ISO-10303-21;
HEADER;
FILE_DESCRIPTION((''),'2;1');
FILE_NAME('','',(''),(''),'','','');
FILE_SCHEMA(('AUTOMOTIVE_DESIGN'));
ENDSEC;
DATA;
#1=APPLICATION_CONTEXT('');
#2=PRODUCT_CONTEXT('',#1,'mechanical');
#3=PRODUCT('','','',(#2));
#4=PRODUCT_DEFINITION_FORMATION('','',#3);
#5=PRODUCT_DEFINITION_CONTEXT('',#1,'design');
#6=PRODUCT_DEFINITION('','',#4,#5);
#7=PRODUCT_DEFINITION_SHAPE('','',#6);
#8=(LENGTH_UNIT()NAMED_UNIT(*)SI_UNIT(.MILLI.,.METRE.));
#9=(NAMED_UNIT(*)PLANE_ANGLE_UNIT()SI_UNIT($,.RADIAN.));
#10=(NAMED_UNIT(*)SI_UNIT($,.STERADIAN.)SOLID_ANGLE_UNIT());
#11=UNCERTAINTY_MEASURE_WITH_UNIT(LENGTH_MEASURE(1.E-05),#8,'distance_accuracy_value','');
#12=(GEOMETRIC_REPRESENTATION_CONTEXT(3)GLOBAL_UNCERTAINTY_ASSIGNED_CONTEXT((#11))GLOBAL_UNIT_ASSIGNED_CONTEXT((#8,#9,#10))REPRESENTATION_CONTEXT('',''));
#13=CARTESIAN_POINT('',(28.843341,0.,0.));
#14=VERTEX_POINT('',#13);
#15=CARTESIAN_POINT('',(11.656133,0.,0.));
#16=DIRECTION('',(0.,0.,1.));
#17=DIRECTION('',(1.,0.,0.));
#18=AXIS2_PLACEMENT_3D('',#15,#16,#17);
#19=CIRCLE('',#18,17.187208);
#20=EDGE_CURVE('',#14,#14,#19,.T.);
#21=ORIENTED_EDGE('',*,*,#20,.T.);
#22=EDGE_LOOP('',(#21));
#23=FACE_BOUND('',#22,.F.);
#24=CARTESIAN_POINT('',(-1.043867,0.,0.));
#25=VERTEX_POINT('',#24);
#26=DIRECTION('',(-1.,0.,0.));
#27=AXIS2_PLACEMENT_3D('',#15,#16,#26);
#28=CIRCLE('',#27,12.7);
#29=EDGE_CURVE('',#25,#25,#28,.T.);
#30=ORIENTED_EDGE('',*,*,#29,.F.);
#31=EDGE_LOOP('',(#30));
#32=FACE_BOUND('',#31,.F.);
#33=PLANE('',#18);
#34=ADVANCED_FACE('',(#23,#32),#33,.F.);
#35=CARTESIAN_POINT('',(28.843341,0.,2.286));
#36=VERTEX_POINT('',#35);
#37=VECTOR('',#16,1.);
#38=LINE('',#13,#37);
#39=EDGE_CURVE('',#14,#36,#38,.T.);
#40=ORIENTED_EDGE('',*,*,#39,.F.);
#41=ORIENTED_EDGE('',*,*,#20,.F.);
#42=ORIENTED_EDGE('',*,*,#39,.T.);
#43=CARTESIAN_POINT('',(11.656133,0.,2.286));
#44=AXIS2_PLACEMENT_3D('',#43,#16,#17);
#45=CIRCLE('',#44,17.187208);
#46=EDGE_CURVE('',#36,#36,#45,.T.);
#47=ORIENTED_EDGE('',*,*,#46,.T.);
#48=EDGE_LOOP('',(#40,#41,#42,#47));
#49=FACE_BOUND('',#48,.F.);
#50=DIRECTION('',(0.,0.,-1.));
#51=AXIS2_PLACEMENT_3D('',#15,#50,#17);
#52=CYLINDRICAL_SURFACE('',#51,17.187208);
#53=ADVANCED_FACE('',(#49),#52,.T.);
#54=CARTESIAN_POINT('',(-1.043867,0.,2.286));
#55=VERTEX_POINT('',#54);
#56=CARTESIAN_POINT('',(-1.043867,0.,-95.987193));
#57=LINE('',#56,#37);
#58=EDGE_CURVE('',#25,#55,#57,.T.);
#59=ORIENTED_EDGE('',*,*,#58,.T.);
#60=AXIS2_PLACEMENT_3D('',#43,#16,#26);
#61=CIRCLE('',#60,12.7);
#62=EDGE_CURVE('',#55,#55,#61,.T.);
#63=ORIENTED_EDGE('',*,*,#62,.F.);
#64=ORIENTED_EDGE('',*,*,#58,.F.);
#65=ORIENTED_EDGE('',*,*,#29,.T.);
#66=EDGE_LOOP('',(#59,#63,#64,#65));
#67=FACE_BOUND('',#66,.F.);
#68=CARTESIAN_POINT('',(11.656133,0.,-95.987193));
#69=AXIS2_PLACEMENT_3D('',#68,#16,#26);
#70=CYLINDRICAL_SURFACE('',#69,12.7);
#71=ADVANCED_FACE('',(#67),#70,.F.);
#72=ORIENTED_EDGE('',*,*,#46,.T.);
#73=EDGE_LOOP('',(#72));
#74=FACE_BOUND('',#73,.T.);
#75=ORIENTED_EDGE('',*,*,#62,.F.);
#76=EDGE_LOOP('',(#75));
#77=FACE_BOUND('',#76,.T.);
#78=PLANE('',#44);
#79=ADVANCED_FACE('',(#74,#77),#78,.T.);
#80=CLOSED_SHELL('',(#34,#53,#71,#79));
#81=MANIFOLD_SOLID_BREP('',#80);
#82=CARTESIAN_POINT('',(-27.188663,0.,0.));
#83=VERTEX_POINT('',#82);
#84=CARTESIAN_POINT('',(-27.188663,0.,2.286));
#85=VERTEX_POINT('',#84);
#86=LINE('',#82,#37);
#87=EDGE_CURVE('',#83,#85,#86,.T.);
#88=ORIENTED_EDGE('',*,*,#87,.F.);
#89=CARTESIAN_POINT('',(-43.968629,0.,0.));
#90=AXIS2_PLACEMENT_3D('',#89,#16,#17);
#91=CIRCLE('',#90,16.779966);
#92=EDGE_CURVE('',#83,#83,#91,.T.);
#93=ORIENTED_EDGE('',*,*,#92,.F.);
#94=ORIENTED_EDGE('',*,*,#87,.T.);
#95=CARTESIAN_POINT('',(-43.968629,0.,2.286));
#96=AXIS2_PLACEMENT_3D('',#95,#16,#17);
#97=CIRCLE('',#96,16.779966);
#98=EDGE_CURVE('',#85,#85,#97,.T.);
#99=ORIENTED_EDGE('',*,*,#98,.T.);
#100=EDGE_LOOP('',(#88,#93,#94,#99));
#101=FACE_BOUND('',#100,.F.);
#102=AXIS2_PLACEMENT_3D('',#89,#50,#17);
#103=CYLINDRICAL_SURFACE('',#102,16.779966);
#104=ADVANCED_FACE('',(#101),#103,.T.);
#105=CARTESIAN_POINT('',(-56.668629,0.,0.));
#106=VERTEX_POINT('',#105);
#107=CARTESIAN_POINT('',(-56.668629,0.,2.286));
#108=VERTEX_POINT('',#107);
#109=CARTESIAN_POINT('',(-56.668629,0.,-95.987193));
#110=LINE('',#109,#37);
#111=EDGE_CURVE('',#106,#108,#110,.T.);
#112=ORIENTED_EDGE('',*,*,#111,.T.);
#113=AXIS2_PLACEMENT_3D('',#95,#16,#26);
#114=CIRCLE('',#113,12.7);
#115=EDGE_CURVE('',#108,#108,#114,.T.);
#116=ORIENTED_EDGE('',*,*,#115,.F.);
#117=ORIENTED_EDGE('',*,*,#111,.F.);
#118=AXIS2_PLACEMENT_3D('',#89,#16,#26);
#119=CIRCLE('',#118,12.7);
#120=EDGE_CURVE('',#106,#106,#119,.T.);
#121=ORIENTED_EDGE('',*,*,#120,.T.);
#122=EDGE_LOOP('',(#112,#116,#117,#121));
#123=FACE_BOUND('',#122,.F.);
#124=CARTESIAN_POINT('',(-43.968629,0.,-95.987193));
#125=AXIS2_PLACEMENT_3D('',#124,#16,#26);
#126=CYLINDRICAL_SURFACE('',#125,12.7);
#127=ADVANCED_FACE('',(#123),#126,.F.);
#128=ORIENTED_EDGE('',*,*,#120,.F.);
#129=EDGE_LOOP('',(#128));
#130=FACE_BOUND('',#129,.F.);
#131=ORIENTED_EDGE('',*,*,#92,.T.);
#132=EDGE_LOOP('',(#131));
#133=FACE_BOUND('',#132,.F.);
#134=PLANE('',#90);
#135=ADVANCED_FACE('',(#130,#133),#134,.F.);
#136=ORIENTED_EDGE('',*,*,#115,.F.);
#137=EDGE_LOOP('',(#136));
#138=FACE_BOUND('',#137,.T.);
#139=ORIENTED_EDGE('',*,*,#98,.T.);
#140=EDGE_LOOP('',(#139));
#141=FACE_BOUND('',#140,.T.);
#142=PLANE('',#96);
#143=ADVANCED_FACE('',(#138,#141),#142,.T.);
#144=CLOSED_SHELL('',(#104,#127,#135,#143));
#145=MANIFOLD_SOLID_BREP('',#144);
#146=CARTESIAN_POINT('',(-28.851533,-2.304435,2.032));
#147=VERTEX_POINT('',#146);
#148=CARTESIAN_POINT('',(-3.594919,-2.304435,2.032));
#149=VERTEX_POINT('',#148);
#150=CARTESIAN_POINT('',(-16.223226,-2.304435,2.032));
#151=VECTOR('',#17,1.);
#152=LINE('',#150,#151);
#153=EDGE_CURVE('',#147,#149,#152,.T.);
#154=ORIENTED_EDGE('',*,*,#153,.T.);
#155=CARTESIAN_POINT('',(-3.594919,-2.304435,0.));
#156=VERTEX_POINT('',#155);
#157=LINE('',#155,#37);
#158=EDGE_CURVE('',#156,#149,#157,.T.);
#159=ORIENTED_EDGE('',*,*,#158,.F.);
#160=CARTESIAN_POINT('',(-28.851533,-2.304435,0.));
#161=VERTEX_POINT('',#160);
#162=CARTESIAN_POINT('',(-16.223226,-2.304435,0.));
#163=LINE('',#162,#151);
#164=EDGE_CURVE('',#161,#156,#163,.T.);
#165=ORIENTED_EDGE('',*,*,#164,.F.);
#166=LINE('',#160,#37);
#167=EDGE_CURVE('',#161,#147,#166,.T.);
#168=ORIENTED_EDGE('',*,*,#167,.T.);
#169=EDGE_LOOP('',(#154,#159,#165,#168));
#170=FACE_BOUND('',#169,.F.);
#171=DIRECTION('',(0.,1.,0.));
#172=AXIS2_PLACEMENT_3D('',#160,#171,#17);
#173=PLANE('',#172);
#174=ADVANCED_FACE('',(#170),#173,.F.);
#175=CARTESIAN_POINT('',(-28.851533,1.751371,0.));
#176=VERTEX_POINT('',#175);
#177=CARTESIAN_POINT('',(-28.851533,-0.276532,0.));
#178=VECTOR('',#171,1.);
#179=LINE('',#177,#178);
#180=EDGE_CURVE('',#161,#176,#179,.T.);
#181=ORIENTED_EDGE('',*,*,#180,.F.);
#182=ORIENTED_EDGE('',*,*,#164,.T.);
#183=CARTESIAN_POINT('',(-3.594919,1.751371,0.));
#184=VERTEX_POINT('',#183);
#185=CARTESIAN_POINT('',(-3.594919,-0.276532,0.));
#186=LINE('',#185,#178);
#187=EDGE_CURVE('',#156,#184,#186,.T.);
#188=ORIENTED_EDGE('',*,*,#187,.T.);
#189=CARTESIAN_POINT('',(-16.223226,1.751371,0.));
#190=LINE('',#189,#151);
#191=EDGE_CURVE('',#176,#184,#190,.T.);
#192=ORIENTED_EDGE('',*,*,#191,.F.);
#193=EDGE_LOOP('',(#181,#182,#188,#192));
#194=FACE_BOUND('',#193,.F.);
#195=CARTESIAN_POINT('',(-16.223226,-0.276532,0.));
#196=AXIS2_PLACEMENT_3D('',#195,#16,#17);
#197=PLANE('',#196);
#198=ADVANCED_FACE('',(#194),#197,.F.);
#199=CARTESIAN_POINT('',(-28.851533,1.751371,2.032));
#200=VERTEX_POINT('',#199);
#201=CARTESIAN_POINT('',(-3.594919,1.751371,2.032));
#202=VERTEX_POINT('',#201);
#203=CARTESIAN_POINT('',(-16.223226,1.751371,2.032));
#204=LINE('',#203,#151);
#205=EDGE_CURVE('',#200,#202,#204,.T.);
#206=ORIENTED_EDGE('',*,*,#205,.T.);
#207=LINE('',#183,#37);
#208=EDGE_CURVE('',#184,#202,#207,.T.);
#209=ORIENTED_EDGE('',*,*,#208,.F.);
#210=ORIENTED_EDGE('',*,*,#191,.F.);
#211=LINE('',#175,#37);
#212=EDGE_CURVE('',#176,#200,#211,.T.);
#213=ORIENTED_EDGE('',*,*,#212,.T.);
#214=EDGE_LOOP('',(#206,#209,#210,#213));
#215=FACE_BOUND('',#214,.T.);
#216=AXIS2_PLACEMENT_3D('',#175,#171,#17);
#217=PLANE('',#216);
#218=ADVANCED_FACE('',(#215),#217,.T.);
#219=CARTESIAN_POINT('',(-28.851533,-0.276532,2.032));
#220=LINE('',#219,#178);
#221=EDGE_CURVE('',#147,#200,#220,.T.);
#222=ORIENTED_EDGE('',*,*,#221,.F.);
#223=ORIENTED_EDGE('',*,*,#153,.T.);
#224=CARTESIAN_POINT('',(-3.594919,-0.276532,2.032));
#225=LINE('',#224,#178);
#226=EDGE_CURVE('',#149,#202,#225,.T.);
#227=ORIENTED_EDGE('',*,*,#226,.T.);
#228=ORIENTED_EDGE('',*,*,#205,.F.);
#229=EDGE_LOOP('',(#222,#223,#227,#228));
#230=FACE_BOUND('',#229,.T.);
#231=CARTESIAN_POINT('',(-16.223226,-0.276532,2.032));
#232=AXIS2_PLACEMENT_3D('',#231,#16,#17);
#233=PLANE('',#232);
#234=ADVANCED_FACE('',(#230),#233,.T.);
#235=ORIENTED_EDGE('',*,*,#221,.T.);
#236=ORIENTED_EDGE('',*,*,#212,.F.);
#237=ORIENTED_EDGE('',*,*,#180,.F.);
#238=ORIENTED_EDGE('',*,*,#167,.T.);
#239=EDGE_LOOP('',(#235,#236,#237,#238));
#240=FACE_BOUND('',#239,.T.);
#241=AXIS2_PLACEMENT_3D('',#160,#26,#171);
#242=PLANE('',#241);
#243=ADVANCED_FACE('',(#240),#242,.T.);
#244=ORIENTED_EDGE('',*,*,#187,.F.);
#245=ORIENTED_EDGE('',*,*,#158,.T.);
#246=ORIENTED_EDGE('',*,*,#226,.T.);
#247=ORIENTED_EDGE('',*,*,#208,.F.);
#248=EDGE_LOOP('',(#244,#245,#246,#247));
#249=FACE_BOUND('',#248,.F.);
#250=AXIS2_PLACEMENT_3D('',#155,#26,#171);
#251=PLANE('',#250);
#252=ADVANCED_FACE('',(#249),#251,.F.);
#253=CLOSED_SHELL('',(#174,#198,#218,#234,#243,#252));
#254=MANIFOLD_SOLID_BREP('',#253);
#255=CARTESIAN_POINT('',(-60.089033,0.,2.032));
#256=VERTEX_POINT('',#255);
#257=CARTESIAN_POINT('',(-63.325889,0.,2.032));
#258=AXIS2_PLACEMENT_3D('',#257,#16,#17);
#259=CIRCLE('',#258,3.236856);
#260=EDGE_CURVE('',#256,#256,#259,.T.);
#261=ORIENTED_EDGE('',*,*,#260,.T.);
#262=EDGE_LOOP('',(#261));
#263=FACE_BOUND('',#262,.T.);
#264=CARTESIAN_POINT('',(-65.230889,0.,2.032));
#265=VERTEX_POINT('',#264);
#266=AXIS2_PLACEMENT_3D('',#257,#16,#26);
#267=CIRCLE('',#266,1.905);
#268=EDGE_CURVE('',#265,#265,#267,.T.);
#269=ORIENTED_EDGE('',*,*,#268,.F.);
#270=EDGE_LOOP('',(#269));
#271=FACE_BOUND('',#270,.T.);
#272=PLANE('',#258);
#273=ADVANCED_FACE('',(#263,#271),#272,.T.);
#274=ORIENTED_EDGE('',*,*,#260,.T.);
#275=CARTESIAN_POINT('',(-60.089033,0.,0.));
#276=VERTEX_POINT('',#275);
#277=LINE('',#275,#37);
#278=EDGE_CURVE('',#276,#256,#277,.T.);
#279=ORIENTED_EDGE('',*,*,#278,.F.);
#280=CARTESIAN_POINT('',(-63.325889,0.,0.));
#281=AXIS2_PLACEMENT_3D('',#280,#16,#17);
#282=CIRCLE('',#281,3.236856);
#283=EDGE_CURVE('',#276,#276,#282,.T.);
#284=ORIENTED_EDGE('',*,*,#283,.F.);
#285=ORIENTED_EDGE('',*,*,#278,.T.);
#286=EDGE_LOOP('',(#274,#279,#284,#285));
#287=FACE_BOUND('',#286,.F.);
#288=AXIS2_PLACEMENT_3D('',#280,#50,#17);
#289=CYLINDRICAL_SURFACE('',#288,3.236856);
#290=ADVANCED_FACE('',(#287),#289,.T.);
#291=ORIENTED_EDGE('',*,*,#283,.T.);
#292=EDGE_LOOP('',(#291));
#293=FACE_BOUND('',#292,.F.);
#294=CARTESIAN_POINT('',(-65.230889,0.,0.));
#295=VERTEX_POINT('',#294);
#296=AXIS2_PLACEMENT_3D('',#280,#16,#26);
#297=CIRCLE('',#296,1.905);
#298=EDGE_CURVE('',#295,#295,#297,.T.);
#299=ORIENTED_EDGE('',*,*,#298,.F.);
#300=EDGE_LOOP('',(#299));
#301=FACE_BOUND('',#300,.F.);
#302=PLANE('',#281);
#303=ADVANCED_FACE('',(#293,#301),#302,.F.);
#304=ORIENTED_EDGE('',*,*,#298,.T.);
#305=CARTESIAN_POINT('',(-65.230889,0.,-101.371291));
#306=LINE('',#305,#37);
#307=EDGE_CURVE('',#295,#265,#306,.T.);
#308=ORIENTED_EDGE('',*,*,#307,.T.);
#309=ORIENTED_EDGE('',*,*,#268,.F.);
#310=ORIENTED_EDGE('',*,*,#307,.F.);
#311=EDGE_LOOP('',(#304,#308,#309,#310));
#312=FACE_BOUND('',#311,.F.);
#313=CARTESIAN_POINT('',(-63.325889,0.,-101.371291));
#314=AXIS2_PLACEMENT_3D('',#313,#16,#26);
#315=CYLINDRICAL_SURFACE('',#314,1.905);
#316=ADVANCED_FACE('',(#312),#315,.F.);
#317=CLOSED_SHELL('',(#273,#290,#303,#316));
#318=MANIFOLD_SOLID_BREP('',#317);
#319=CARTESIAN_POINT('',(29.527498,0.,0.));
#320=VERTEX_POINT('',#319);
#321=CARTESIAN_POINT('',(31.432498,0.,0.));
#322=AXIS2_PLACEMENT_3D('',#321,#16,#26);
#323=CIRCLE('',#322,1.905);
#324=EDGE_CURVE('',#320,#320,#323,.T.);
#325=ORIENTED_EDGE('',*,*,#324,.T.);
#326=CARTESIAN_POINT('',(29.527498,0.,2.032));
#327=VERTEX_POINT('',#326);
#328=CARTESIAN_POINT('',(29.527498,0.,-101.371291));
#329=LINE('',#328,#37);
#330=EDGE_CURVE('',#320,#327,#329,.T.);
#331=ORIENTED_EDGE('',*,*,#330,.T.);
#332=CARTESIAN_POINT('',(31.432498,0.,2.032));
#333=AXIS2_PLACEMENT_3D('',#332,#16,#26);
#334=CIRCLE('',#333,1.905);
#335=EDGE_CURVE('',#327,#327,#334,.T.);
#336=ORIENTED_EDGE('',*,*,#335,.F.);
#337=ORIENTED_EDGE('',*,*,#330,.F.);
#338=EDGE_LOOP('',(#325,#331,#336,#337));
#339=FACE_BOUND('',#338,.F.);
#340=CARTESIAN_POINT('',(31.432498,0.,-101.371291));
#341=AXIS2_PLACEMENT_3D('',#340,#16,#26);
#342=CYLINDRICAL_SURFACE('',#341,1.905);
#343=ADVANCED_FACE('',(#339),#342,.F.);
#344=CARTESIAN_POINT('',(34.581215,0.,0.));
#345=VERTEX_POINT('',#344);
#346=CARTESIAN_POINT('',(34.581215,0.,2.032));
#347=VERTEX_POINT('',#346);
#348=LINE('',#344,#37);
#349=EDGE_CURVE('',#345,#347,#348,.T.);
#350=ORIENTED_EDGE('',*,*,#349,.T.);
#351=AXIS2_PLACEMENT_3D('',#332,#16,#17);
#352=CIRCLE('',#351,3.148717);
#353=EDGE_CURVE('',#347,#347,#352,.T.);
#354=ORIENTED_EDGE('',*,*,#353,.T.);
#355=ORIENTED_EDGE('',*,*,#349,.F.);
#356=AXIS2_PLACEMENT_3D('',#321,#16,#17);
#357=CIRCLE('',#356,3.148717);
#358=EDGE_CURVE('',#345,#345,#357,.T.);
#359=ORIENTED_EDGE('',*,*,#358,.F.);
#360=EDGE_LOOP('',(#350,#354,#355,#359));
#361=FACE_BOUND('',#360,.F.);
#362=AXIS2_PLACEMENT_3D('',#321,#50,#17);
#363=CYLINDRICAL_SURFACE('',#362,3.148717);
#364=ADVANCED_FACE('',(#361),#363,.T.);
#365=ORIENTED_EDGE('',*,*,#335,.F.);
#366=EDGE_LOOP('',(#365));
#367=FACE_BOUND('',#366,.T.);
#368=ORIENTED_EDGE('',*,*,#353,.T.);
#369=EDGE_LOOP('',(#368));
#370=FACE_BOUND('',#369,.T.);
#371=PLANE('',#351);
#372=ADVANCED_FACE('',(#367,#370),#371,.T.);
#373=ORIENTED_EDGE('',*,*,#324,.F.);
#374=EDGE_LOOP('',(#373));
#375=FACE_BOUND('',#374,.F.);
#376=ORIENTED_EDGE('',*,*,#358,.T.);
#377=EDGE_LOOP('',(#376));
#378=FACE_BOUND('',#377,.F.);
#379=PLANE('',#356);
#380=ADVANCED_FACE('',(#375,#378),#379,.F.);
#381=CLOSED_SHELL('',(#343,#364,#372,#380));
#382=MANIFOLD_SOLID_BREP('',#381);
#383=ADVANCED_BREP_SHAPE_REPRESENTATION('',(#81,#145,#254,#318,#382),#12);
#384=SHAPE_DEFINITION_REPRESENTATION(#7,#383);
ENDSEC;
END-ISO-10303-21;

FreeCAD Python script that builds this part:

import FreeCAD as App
import Part
import Sketcher

V = App.Vector
Q = App.Units.Quantity

doc = App.newDocument("Part")
params = doc.addObject("Spreadsheet::Sheet", "Params")
for row, (alias, value) in enumerate([
    ("pad1_length", "0.09 in"),
    ("sketch2_diameter", "1 in"),
    ("hole_diameter", "1 in"),
    ("pad2_length", "0.08 in"),
    ("sketch4_diameter", "0.15 in"),
    ("hole2_diameter", "0.15 in"),
    ("pad3_length", "0.08 in"),
], start=1):
    params.set(f"A{row}", alias)
    params.set(f"B{row}", "=" + value)
    params.setAlias(f"B{row}", alias)

body = doc.addObject("PartDesign::Body", "Body")
body.AllowCompound = True

# Sketch on XY plane
sketch1 = body.newObject("Sketcher::SketchObject", "Sketch")
sketch1.AttachmentSupport = (doc.getObject("XY_Plane"), [""])
sketch1.MapMode = "FlatFace"
sketch1.addGeometry([
    Part.Circle(V(-44, 0, 0), V(0, 0, 1), 17),
    Part.Circle(V(12, 0, 0), V(0, 0, 1), 17),
], False)
sketch1.addConstraint([
    Sketcher.Constraint("PointOnObject", 0, 3, -1),
    Sketcher.Constraint("PointOnObject", 1, 3, -1),
    Sketcher.Constraint("Diameter", 0, Q("33.559932 mm")),
    Sketcher.Constraint("Diameter", 1, Q("34.374416 mm")),
    Sketcher.Constraint("DistanceX", 0, 3, -1, 1, Q("43.968629 mm")),
    Sketcher.Constraint("DistanceX", -1, 1, 1, 3, Q("11.656133 mm")),
])
pad1 = body.newObject("PartDesign::Pad", "Pad")
pad1.Profile = sketch1
pad1.setExpression("Length", "Params.pad1_length")

# Sketch on XY plane
sketch2 = body.newObject("Sketcher::SketchObject", "Sketch001")
sketch2.AttachmentSupport = (doc.getObject("XY_Plane"), [""])
sketch2.MapMode = "FlatFace"
sketch2.addGeometry([
    Part.Circle(V(-44, 0, 0), V(0, 0, 1), 13),
    Part.Circle(V(12, 0, 0), V(0, 0, 1), 13),
], False)
sketch2.addConstraint([
    Sketcher.Constraint("Equal", 0, 1),
    Sketcher.Constraint("PointOnObject", 0, 3, -1),
    Sketcher.Constraint("PointOnObject", 1, 3, -1),
    Sketcher.Constraint("Diameter", 0, Q("1 in")),
    Sketcher.Constraint("DistanceX", 0, 3, -1, 1, Q("43.968629 mm")),
    Sketcher.Constraint("DistanceX", -1, 1, 1, 3, Q("11.656133 mm")),
])
sketch2.setExpression("Constraints[3]", "Params.sketch2_diameter")
doc.recompute()
hole = body.newObject("PartDesign::Hole", "Hole")
hole.Profile = sketch2
hole.ThreadType = "None"
hole.setExpression("Diameter", "Params.hole_diameter")
hole.DepthType = "ThroughAll"
hole.Reversed = True
body2 = doc.addObject("PartDesign::Body", "Body001")
body2.AllowCompound = True

# Sketch on XY plane
sketch3 = body2.newObject("Sketcher::SketchObject", "Sketch002")
sketch3.AttachmentSupport = (doc.getObject("XY_Plane001"), [""])
sketch3.MapMode = "FlatFace"
sketch3.addGeometry([
    Part.Circle(V(-63.3, 0, 0), V(0, 0, 1), 3.2),
    Part.Circle(V(31.4, 0, 0), V(0, 0, 1), 3.1),
], False)
sketch3.addConstraint([
    Sketcher.Constraint("PointOnObject", 0, 3, -1),
    Sketcher.Constraint("PointOnObject", 1, 3, -1),
    Sketcher.Constraint("Diameter", 0, Q("6.473712 mm")),
    Sketcher.Constraint("Diameter", 1, Q("6.297434 mm")),
    Sketcher.Constraint("DistanceX", -1, 1, 1, 3, Q("1.2374999 in")),
    Sketcher.Constraint("DistanceX", 0, 3, -1, 1, Q("63.325889 mm")),
])
pad2 = body2.newObject("PartDesign::Pad", "Pad001")
pad2.Profile = sketch3
pad2.setExpression("Length", "Params.pad2_length")

# Sketch on XY plane
sketch4 = body2.newObject("Sketcher::SketchObject", "Sketch003")
sketch4.AttachmentSupport = (doc.getObject("XY_Plane001"), [""])
sketch4.MapMode = "FlatFace"
sketch4.addGeometry([
    Part.Circle(V(-63.3, 0, 0), V(0, 0, 1), 1.9),
    Part.Circle(V(31.4, 0, 0), V(0, 0, 1), 1.9),
], False)
sketch4.addConstraint([
    Sketcher.Constraint("Equal", 0, 1),
    Sketcher.Constraint("PointOnObject", 0, 3, -1),
    Sketcher.Constraint("PointOnObject", 1, 3, -1),
    Sketcher.Constraint("Diameter", 0, Q("0.15 in")),
    Sketcher.Constraint("DistanceX", -1, 1, 1, 3, Q("1.2374999 in")),
    Sketcher.Constraint("DistanceX", 0, 3, -1, 1, Q("63.325889 mm")),
])
sketch4.setExpression("Constraints[3]", "Params.sketch4_diameter")
doc.recompute()
hole2 = body2.newObject("PartDesign::Hole", "Hole001")
hole2.Profile = sketch4
hole2.ThreadType = "None"
hole2.setExpression("Diameter", "Params.hole2_diameter")
hole2.DepthType = "ThroughAll"
hole2.Reversed = True
body3 = doc.addObject("PartDesign::Body", "Body002")

# Sketch on XY plane
sketch5 = body3.newObject("Sketcher::SketchObject", "Sketch004")
sketch5.AttachmentSupport = (doc.getObject("XY_Plane002"), [""])
sketch5.MapMode = "FlatFace"
sketch5.addGeometry([
    Part.LineSegment(V(-28.9, 1.8, 0), V(-28.9, -2.3, 0)),
    Part.LineSegment(V(-28.9, -2.3, 0), V(-3.6, -2.3, 0)),
    Part.LineSegment(V(-3.6, -2.3, 0), V(-3.6, 1.8, 0)),
    Part.LineSegment(V(-3.6, 1.8, 0), V(-28.9, 1.8, 0)),
], False)
sketch5.addConstraint([
    Sketcher.Constraint("Coincident", 0, 2, 1, 1),
    Sketcher.Constraint("Coincident", 1, 2, 2, 1),
    Sketcher.Constraint("Coincident", 2, 2, 3, 1),
    Sketcher.Constraint("Coincident", 3, 2, 0, 1),
    Sketcher.Constraint("Vertical", 0),
    Sketcher.Constraint("Horizontal", 1),
    Sketcher.Constraint("Vertical", 2),
    Sketcher.Constraint("Horizontal", 3),
    Sketcher.Constraint("DistanceX", 1, 1, 1, 2, Q("25.256614 mm")),
    Sketcher.Constraint("DistanceY", 0, 2, 0, 1, Q("4.055806 mm")),
    Sketcher.Constraint("DistanceX", 1, 2, -1, 1, Q("3.594919 mm")),
    Sketcher.Constraint("DistanceY", -1, 1, 2, 2, Q("1.751371 mm")),
])
pad3 = body3.newObject("PartDesign::Pad", "Pad002")
pad3.Profile = sketch5
pad3.setExpression("Length", "Params.pad3_length")

doc.recompute()
